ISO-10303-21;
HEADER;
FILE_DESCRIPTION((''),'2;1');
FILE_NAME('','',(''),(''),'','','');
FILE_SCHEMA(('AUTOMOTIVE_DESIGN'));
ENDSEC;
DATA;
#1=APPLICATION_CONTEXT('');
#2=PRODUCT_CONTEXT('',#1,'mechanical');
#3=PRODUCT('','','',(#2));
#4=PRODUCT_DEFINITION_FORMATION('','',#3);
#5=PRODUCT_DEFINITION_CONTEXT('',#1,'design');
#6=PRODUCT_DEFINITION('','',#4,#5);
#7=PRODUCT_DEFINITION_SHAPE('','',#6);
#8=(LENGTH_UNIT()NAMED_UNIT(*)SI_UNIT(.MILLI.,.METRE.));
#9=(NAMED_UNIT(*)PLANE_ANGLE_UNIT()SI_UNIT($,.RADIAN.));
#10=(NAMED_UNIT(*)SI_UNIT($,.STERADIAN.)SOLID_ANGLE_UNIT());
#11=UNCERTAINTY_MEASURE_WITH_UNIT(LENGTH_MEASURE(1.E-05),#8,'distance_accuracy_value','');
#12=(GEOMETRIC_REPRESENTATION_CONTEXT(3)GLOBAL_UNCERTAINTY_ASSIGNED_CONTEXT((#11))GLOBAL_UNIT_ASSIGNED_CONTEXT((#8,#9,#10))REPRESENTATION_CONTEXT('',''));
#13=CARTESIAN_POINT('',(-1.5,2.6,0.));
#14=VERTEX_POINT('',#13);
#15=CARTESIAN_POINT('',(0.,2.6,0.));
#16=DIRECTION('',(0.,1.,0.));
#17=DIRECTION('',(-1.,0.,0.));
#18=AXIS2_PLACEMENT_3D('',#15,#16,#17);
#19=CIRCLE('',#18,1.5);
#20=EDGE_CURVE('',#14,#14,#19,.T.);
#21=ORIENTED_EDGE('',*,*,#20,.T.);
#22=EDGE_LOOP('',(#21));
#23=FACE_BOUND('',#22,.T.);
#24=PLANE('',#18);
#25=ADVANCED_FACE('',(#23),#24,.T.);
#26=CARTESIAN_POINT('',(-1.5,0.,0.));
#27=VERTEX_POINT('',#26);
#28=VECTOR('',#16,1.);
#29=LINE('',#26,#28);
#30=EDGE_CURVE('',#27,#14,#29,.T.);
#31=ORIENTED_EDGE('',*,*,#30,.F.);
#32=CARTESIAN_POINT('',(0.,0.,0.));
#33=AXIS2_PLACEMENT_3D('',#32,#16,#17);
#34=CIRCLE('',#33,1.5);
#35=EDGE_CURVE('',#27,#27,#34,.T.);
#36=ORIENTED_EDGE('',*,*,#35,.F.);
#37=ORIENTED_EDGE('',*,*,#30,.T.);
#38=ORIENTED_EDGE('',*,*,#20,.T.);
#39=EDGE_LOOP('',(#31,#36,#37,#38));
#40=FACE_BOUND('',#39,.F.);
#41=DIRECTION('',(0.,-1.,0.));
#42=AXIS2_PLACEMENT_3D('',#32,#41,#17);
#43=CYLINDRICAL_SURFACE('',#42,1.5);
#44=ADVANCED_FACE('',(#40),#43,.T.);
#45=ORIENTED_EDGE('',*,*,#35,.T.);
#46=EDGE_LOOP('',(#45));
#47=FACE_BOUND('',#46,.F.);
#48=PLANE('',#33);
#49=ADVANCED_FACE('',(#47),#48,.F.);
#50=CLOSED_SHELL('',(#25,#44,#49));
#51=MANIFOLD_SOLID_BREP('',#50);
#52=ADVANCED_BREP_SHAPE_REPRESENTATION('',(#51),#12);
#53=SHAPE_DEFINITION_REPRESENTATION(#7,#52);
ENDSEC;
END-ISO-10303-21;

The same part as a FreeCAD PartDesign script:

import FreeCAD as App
import Part
import Sketcher
from FreeCAD import Vector
Q = App.Units.Quantity

doc = App.newDocument("Part")
body = doc.addObject("PartDesign::Body", "Body")

sketch1 = doc.addObject("Sketcher::SketchObject", "Sketch")
body.addObject(sketch1)
sketch1.AttachmentSupport = (doc.XZ_Plane, [""])
sketch1.MapMode = "FlatFace"
sketch1.addGeometry(Part.Circle(Vector(0, 0, 0), Vector(0, 0, 1), 1.5), False)
sketch1.addConstraint(Sketcher.Constraint("Coincident", 0, 3, -1, 1))
sketch1.addConstraint(Sketcher.Constraint("Diameter", 0, Q("3 mm")))
pad1 = doc.addObject("PartDesign::Pad", "Pad")
body.addObject(pad1)
pad1.Profile = sketch1
pad1.Length = 2.6
pad1.Reversed = True

doc.recompute()
